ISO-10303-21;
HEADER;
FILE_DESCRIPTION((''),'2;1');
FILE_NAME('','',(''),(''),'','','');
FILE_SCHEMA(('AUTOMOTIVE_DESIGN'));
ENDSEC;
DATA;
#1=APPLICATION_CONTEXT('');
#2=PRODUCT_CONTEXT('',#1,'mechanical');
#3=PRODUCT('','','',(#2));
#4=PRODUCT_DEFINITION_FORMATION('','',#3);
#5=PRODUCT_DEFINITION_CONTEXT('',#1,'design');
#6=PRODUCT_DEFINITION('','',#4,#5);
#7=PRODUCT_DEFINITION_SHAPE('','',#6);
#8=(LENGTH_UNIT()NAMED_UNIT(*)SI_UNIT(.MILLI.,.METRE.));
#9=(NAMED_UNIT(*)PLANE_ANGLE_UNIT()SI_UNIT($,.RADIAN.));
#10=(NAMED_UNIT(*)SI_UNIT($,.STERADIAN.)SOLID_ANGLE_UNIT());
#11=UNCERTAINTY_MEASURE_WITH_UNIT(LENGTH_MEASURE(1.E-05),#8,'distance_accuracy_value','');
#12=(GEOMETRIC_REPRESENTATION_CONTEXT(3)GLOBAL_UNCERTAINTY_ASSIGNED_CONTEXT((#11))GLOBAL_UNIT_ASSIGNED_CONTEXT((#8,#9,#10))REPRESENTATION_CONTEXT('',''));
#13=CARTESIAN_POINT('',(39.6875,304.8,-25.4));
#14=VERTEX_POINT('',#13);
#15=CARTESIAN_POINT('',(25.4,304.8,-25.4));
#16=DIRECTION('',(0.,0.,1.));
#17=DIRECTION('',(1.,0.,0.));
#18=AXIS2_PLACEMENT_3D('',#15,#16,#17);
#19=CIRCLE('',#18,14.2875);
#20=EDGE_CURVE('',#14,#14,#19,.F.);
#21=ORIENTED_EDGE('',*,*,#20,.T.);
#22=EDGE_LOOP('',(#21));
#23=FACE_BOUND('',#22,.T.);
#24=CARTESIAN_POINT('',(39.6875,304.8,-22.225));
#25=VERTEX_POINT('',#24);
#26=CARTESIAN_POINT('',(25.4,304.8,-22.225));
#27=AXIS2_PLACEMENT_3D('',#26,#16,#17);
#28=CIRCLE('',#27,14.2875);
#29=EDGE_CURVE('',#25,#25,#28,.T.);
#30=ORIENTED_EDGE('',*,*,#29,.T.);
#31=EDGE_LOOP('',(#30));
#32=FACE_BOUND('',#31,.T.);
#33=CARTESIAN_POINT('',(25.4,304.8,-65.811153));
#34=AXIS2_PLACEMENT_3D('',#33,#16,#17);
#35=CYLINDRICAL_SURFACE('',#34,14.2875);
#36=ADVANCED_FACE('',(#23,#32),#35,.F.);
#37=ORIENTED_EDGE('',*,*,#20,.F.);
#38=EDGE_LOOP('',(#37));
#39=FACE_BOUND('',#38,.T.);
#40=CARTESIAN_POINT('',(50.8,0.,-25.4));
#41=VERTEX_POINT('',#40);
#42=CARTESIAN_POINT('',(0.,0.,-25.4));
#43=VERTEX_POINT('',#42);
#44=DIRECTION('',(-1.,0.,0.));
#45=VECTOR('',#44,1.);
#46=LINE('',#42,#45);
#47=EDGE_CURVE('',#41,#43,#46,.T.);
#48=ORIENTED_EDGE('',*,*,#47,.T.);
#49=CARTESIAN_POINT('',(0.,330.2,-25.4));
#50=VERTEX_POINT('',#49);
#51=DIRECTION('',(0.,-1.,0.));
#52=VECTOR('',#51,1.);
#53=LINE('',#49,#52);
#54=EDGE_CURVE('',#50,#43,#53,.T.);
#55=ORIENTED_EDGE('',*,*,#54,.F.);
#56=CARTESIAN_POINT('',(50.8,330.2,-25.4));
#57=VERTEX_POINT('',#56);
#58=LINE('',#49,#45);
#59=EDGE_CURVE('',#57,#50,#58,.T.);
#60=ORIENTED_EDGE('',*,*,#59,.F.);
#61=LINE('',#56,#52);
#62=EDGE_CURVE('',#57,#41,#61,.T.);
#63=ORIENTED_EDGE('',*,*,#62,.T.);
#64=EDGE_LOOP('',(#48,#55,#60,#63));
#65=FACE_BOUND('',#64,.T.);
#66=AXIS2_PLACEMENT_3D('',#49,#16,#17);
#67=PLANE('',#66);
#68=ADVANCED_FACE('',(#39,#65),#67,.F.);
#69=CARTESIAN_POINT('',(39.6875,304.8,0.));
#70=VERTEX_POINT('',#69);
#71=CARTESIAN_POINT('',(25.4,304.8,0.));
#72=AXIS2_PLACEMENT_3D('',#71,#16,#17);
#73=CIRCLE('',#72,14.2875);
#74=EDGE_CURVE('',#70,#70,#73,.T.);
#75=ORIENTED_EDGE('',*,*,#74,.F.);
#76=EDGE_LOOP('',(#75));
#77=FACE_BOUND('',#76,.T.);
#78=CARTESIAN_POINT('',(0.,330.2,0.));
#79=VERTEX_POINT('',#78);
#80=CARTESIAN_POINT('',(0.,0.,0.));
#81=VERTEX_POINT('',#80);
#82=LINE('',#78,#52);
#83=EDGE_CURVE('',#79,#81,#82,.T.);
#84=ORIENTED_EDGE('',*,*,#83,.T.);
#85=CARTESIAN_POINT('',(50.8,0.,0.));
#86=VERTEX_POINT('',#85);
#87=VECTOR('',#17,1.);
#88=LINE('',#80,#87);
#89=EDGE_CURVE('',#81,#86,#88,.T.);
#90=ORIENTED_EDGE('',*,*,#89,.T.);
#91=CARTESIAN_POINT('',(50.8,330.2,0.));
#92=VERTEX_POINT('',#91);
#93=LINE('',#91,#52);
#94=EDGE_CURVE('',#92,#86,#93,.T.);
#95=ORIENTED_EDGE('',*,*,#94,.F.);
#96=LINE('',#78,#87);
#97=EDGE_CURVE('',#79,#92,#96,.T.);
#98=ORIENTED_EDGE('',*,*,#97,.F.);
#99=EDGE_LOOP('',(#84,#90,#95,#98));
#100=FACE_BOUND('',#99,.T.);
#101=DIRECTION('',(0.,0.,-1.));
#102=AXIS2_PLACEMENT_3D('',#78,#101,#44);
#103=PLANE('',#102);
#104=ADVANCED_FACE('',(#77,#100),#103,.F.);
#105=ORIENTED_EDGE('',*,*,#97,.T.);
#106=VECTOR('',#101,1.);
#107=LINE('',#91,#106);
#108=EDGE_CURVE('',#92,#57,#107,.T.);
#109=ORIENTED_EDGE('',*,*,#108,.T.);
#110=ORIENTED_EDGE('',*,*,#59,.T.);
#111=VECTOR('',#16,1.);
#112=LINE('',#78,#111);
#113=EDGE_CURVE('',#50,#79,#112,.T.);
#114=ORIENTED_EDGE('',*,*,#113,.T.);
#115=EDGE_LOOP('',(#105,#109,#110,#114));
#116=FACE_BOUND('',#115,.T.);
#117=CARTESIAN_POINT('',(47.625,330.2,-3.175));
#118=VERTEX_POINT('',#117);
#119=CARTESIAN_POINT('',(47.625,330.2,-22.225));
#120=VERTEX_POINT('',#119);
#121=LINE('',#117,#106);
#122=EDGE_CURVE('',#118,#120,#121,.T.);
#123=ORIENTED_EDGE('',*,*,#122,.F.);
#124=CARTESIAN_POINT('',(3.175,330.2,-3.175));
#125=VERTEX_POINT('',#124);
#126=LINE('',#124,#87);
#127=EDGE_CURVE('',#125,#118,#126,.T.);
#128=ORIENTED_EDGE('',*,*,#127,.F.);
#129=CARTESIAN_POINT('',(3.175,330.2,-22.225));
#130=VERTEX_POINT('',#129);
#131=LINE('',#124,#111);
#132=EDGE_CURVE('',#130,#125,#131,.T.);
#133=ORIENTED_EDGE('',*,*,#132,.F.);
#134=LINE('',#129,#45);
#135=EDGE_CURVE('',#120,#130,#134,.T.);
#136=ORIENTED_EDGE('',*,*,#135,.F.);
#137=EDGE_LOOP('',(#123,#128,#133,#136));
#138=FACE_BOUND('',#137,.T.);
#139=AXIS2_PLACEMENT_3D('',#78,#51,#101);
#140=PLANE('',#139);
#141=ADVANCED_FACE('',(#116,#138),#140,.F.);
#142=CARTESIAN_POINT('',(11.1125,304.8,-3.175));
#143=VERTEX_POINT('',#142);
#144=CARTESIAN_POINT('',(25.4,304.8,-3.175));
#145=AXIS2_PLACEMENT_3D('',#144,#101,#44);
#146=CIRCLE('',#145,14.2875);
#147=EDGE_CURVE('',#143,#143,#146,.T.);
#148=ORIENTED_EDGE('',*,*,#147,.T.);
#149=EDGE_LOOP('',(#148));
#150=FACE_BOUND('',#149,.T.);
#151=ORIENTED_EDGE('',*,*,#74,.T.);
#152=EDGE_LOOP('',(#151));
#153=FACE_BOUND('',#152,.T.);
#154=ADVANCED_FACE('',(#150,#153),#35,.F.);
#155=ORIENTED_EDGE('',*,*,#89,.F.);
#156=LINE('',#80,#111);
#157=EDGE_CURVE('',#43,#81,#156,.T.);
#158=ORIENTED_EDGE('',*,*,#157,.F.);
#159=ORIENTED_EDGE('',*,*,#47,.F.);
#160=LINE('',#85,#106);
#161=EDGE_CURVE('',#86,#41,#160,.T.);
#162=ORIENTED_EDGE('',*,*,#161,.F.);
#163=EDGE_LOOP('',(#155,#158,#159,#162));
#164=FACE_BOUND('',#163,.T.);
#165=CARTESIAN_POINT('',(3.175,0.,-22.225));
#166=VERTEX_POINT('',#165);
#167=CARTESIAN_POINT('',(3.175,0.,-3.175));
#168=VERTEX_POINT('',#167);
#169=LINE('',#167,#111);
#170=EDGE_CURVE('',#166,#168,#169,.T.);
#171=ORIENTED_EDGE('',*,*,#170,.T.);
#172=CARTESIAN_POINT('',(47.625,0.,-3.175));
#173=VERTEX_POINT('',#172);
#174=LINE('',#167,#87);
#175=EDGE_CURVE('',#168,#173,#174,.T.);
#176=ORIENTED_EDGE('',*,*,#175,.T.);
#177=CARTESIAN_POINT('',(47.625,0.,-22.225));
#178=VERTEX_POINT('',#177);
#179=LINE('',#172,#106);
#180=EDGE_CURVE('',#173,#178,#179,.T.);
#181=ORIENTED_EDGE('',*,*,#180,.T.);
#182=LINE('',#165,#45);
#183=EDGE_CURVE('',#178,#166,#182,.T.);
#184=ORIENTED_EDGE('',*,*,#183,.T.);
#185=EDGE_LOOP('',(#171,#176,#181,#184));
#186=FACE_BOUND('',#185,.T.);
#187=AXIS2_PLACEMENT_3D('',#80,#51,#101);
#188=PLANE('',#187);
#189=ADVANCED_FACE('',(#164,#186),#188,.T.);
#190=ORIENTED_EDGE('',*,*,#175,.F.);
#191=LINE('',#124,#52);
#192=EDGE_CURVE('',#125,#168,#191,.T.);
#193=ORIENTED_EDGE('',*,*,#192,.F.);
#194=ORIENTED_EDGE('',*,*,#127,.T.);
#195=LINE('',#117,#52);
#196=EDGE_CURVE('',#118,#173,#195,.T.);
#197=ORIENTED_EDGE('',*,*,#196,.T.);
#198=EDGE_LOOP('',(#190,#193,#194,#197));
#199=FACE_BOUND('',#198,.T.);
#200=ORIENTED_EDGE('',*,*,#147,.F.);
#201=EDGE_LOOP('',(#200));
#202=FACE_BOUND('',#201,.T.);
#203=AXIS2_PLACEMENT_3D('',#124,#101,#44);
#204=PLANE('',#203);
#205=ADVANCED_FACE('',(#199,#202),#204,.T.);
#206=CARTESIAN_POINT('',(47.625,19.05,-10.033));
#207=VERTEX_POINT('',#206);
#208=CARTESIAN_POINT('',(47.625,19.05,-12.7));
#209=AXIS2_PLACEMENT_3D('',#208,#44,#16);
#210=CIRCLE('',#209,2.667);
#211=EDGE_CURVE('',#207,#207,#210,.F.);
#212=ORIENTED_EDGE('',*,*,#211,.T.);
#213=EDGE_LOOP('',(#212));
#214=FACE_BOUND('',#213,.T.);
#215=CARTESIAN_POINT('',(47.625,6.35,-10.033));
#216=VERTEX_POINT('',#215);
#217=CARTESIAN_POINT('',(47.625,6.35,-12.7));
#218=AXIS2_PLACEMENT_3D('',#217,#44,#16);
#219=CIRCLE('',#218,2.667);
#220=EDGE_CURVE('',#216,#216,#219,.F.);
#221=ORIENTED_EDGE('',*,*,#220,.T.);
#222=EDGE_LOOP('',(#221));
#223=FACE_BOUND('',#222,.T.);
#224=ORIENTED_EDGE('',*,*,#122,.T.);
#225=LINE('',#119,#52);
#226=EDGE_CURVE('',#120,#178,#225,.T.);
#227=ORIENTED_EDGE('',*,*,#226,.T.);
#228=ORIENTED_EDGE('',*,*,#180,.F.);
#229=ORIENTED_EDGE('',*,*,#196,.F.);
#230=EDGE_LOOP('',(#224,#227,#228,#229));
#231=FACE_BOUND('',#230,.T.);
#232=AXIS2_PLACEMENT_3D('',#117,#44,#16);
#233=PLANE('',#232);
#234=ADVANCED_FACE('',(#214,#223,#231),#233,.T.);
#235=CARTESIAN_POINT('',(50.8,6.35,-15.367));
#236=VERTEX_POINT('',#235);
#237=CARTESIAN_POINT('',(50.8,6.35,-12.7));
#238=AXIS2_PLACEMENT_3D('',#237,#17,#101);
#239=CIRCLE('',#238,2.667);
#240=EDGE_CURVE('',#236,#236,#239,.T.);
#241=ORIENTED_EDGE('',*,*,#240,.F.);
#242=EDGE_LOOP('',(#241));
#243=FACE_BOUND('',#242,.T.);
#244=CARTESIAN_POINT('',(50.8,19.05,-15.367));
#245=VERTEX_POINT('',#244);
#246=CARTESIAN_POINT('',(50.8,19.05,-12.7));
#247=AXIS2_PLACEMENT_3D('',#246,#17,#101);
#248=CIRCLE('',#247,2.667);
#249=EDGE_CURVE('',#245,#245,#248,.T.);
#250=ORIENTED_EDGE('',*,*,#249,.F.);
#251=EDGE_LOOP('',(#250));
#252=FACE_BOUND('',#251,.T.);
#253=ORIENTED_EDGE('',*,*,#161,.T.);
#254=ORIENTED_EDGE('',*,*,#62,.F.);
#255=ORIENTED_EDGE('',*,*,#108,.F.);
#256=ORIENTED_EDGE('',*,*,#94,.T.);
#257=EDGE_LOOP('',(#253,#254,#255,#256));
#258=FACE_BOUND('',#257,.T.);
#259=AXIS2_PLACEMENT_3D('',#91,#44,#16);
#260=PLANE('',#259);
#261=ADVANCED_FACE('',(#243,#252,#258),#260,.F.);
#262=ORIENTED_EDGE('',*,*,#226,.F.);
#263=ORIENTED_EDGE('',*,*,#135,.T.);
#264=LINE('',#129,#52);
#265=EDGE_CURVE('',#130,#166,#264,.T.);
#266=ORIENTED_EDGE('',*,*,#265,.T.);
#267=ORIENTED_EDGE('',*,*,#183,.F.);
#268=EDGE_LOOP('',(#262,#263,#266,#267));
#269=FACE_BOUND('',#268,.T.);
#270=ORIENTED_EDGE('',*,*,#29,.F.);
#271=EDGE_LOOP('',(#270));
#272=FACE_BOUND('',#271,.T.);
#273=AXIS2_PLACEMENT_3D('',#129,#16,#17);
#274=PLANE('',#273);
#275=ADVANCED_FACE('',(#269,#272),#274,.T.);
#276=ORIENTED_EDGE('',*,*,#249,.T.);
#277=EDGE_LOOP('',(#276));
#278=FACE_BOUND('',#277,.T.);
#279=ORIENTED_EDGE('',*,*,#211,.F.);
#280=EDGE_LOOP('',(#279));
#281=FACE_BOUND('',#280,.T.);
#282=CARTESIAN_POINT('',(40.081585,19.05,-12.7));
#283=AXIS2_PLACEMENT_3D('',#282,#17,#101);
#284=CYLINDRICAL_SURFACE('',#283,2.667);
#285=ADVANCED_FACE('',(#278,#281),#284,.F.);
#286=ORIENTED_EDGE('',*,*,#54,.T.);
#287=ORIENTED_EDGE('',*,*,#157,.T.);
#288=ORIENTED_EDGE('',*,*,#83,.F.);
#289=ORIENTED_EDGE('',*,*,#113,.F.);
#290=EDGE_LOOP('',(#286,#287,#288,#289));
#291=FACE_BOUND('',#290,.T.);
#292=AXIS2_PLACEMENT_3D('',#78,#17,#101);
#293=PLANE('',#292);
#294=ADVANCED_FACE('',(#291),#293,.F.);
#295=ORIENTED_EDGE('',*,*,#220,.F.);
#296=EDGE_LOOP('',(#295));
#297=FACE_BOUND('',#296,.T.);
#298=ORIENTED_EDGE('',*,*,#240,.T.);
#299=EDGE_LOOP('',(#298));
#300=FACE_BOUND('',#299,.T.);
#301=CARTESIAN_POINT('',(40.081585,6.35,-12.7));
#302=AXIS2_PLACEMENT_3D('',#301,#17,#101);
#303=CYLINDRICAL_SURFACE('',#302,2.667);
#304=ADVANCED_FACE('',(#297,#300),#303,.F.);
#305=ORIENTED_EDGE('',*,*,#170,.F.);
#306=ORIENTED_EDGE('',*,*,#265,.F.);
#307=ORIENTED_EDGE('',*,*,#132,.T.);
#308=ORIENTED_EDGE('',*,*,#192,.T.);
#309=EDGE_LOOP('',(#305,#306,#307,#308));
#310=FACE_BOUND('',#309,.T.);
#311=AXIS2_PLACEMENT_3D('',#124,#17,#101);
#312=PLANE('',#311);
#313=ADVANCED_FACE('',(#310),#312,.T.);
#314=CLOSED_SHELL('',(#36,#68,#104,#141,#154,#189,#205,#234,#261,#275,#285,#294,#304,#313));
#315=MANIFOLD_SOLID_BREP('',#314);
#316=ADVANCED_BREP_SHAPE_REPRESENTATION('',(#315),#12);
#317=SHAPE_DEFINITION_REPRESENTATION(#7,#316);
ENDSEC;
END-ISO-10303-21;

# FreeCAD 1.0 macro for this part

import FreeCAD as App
import Part
import Sketcher
Q = App.Units.Quantity

doc = App.newDocument("Part")
body = doc.addObject("PartDesign::Body", "Body")

# Sketch on XZ plane
sketch1 = body.newObject("Sketcher::SketchObject", "Sketch")
sketch1.AttachmentSupport = (doc.getObject("XZ_Plane"), [""])
sketch1.MapMode = "FlatFace"
sketch1.addGeometry(Part.LineSegment(App.Vector(0, -25, 0), App.Vector(0, 0, 0)), False)
sketch1.addGeometry(Part.LineSegment(App.Vector(0, 0, 0), App.Vector(51, 0, 0)), False)
sketch1.addGeometry(Part.LineSegment(App.Vector(51, 0, 0), App.Vector(51, -25, 0)), False)
sketch1.addGeometry(Part.LineSegment(App.Vector(51, -25, 0), App.Vector(0, -25, 0)), False)
sketch1.addGeometry(Part.LineSegment(App.Vector(48, -3, 0), App.Vector(3, -3, 0)), False)
sketch1.addGeometry(Part.LineSegment(App.Vector(3, -3, 0), App.Vector(3, -22, 0)), False)
sketch1.addGeometry(Part.LineSegment(App.Vector(3, -22, 0), App.Vector(48, -22, 0)), False)
sketch1.addGeometry(Part.LineSegment(App.Vector(48, -22, 0), App.Vector(48, -3, 0)), False)
sketch1.addConstraint(Sketcher.Constraint("Coincident", 0, 2, 1, 1))
sketch1.addConstraint(Sketcher.Constraint("Coincident", 1, 2, 2, 1))
sketch1.addConstraint(Sketcher.Constraint("Coincident", 2, 2, 3, 1))
sketch1.addConstraint(Sketcher.Constraint("Coincident", 3, 2, 0, 1))
sketch1.addConstraint(Sketcher.Constraint("Coincident", 4, 2, 5, 1))
sketch1.addConstraint(Sketcher.Constraint("Coincident", 5, 2, 6, 1))
sketch1.addConstraint(Sketcher.Constraint("Coincident", 6, 2, 7, 1))
sketch1.addConstraint(Sketcher.Constraint("Coincident", 7, 2, 4, 1))
sketch1.addConstraint(Sketcher.Constraint("Vertical", 0))
sketch1.addConstraint(Sketcher.Constraint("Horizontal", 1))
sketch1.addConstraint(Sketcher.Constraint("Vertical", 2))
sketch1.addConstraint(Sketcher.Constraint("Horizontal", 3))
sketch1.addConstraint(Sketcher.Constraint("Horizontal", 4))
sketch1.addConstraint(Sketcher.Constraint("Vertical", 5))
sketch1.addConstraint(Sketcher.Constraint("Horizontal", 6))
sketch1.addConstraint(Sketcher.Constraint("Vertical", 7))
sketch1.addConstraint(Sketcher.Constraint("Coincident", 0, 2, -1, 1))
sketch1.addConstraint(Sketcher.Constraint("DistanceX", 1, 1, 1, 2, Q("2 in")))
sketch1.addConstraint(Sketcher.Constraint("DistanceY", 0, 1, 0, 2, Q("1 in")))
sketch1.addConstraint(Sketcher.Constraint("DistanceX", 4, 2, 4, 1, Q("1.75 in")))
sketch1.addConstraint(Sketcher.Constraint("DistanceY", 5, 2, 5, 1, Q("0.75 in")))
sketch1.addConstraint(Sketcher.Constraint("DistanceX", -1, 1, 4, 2, Q("0.125 in")))
sketch1.addConstraint(Sketcher.Constraint("DistanceY", 4, 2, -1, 1, Q("0.125 in")))
pad1 = body.newObject("PartDesign::Pad", "Pad")
pad1.Profile = sketch1
pad1.Length = Q("13 in")
pad1.Reversed = True

# Sketch on XY plane
sketch2 = body.newObject("Sketcher::SketchObject", "Sketch001")
sketch2.AttachmentSupport = (doc.getObject("XY_Plane"), [""])
sketch2.MapMode = "FlatFace"
sketch2.addGeometry(Part.Circle(App.Vector(25, 305, 0), App.Vector(0, 0, 1), 14), False)
sketch2.addConstraint(Sketcher.Constraint("Diameter", 0, Q("1.125 in")))
sketch2.addConstraint(Sketcher.Constraint("DistanceX", -1, 1, 0, 3, Q("1 in")))
sketch2.addConstraint(Sketcher.Constraint("DistanceY", -1, 1, 0, 3, Q("12 in")))
pocket1 = body.newObject("PartDesign::Pocket", "Pocket")
pocket1.Profile = sketch2
pocket1.Length = Q("1 in")

# Sketch on YZ plane
sketch3 = body.newObject("Sketcher::SketchObject", "Sketch002")
sketch3.AttachmentSupport = (doc.getObject("YZ_Plane"), [""])
sketch3.MapMode = "FlatFace"
sketch3.AttachmentOffset = App.Placement(App.Vector(0, 0, 2 * 25.4), App.Rotation())
sketch3.addGeometry(Part.Circle(App.Vector(19.1, -12.7, 0), App.Vector(0, 0, 1), 2.7), False)
sketch3.addGeometry(Part.Circle(App.Vector(6.3, -12.7, 0), App.Vector(0, 0, 1), 2.7), False)
sketch3.addConstraint(Sketcher.Constraint("Equal", 0, 1))
sketch3.addConstraint(Sketcher.Constraint("Horizontal", 0, 3, 1, 3))
sketch3.addConstraint(Sketcher.Constraint("Diameter", 0, Q("0.21 in")))
sketch3.addConstraint(Sketcher.Constraint("DistanceY", 0, 3, -1, 1, Q("0.5 in")))
sketch3.addConstraint(Sketcher.Constraint("DistanceX", 1, 3, 0, 3, Q("0.5 in")))
sketch3.addConstraint(Sketcher.Constraint("DistanceX", -1, 1, 0, 3, Q("0.75 in")))
pocket2 = body.newObject("PartDesign::Pocket", "Pocket001")
pocket2.Profile = sketch3
pocket2.Length = Q("0.125 in")

doc.recompute()
